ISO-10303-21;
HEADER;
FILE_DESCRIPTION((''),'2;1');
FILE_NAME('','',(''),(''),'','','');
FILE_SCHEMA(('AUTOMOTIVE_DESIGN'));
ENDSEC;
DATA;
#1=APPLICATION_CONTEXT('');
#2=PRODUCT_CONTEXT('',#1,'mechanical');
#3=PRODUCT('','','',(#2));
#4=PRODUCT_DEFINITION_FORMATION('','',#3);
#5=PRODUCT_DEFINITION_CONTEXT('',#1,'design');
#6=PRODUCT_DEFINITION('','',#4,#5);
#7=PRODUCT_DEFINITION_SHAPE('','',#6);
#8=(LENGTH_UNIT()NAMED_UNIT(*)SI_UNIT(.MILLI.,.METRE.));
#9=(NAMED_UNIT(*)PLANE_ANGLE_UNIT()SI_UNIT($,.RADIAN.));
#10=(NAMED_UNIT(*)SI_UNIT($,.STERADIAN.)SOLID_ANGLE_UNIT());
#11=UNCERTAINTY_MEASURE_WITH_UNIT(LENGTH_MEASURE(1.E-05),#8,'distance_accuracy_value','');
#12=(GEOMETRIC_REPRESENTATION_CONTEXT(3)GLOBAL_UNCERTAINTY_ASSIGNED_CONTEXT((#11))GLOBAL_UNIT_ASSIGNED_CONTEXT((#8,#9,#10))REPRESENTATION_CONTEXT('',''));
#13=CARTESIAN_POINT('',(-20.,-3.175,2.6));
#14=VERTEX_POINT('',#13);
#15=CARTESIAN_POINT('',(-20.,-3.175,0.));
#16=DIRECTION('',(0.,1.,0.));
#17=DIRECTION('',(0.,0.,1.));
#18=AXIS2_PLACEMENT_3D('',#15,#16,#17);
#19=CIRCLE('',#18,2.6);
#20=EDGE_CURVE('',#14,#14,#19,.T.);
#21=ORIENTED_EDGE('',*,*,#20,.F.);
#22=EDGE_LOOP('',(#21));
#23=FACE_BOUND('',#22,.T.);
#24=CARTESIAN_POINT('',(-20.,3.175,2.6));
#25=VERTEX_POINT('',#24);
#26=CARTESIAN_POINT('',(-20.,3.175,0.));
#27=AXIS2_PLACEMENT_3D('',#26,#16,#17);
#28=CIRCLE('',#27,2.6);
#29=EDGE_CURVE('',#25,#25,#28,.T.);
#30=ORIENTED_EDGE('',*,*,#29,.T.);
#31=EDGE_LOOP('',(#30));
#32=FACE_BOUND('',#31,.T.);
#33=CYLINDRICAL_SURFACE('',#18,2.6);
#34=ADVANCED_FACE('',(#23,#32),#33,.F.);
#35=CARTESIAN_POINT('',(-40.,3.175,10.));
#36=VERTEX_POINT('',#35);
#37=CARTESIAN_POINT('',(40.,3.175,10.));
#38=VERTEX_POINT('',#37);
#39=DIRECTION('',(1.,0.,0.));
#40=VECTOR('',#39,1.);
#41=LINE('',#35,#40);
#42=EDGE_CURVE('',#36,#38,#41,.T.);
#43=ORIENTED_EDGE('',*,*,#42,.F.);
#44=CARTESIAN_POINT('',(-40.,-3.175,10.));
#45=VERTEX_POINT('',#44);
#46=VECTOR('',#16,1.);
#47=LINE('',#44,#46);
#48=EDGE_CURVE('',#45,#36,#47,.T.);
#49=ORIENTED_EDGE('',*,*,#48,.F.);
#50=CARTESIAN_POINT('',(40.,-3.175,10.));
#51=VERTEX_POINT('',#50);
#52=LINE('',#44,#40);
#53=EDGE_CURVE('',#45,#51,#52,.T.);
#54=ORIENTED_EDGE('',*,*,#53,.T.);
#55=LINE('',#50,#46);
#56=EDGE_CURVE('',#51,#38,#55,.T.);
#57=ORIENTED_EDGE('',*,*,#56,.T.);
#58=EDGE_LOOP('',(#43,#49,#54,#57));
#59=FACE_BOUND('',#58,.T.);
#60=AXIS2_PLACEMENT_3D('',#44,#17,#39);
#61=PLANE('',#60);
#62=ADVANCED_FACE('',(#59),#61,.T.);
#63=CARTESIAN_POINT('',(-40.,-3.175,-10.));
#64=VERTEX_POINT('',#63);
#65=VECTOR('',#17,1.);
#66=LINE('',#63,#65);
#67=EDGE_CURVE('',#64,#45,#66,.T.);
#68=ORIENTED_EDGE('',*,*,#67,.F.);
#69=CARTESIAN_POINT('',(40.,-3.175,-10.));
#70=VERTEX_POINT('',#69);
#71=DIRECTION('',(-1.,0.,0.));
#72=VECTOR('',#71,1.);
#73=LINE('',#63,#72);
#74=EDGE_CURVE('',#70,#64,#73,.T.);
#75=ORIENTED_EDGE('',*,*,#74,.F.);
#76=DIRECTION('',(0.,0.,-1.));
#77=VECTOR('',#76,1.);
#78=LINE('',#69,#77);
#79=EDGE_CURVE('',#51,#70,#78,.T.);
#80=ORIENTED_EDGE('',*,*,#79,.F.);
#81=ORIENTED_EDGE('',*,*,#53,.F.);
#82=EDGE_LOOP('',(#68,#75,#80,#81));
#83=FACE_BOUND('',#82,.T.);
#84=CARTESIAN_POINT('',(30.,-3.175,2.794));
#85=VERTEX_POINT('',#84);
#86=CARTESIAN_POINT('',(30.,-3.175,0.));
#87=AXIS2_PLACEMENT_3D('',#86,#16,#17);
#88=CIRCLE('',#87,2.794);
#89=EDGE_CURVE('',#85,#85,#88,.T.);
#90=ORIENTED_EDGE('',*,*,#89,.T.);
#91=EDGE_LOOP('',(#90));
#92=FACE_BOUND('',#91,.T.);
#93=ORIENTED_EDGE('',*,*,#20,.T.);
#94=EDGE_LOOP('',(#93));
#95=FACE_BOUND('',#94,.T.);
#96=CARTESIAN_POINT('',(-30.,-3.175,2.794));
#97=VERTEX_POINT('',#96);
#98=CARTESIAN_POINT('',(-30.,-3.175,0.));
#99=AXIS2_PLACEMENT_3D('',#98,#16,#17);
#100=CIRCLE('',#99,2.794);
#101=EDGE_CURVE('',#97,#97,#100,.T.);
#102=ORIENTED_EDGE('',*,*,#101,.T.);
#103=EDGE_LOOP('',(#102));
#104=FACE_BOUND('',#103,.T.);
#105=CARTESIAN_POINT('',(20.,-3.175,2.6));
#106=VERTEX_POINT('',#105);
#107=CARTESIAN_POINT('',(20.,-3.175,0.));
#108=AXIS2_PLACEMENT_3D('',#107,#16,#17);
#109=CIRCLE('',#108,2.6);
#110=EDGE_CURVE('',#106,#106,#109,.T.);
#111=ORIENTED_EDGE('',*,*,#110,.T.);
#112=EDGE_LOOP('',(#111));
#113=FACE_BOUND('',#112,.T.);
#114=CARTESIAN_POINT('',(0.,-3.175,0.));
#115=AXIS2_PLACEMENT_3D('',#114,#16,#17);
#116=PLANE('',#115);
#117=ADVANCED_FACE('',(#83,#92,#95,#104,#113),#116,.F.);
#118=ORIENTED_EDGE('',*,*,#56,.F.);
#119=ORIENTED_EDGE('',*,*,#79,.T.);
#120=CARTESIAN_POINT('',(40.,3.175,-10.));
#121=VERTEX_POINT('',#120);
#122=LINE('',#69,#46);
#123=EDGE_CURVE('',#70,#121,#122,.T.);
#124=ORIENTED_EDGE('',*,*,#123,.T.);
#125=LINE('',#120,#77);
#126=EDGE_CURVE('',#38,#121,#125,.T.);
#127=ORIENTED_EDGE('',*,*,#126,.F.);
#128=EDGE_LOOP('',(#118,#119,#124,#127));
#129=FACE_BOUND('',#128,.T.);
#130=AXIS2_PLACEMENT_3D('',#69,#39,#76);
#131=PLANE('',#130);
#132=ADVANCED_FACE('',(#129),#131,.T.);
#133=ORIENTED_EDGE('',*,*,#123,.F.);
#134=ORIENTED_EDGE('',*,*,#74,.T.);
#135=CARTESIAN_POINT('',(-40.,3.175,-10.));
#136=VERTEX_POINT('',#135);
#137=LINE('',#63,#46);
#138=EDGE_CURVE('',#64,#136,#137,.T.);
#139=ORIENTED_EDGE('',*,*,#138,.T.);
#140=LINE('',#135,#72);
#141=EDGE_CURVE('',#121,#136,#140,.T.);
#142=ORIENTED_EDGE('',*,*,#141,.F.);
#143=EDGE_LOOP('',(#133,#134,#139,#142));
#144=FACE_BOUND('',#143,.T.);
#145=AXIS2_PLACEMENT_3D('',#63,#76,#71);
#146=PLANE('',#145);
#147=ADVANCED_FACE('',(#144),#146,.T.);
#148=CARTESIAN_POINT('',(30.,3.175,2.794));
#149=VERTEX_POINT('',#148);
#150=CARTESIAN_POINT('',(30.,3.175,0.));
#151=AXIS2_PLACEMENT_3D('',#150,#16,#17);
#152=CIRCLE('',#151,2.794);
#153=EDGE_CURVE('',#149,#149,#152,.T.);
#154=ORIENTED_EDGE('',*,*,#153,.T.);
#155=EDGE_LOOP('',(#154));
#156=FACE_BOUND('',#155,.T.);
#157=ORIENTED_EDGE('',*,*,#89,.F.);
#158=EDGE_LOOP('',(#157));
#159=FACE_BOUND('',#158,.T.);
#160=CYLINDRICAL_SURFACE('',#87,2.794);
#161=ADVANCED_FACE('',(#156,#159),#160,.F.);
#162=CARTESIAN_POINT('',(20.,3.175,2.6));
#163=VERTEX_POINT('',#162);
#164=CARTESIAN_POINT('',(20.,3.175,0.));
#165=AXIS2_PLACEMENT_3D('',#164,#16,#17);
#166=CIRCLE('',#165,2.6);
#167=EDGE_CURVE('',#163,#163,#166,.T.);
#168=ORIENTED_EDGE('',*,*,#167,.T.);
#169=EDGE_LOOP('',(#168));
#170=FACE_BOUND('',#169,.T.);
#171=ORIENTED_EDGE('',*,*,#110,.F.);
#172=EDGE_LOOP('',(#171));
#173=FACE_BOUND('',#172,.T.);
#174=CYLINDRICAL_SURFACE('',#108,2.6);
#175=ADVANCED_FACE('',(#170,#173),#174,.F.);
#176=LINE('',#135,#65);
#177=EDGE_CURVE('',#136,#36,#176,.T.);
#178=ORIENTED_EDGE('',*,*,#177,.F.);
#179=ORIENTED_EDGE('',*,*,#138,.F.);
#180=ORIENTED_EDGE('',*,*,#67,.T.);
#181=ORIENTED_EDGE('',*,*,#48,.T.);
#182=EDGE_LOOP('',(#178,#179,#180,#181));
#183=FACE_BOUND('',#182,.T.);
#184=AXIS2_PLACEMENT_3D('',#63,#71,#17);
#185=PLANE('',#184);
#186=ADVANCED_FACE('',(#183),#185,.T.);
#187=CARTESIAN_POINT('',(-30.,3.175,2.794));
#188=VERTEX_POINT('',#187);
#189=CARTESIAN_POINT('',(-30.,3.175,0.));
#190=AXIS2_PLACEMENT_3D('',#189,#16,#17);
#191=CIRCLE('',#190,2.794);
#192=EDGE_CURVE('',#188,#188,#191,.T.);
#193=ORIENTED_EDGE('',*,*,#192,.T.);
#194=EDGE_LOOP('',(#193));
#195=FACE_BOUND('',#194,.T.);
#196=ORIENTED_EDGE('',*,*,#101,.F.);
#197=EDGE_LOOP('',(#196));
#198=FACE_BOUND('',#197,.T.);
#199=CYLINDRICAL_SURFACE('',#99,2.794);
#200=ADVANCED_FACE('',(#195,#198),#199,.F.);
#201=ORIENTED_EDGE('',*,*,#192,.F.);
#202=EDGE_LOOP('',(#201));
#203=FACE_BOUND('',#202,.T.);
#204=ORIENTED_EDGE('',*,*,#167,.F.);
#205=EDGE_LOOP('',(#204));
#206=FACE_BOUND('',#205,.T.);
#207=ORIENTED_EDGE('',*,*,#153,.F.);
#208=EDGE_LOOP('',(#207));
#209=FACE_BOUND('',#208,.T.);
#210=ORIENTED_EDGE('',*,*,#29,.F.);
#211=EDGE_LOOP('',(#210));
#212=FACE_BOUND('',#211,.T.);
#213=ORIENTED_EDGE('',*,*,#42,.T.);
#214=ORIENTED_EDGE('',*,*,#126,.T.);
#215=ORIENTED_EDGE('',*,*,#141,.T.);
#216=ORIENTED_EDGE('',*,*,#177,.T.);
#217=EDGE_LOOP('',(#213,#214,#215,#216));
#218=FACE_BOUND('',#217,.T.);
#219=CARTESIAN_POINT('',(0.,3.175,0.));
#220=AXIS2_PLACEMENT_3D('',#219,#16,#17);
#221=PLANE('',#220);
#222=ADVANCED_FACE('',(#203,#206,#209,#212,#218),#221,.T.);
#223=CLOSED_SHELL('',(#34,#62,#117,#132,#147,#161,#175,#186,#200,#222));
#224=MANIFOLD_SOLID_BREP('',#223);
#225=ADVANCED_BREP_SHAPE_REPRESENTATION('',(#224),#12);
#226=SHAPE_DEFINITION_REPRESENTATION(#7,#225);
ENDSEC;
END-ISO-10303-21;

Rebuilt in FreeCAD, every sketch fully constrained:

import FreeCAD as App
import Part
import Sketcher

V = App.Vector


def add_polygon(sketch, points):
    """Adds a closed chain of lines whose ends are joined by coincident constraints."""
    first, n = sketch.GeometryCount, len(points)
    for a, b in zip(points, points[1:] + points[:1]):
        sketch.addGeometry(Part.LineSegment(App.Vector(*a, 0), App.Vector(*b, 0)), False)
    for i in range(n):
        sketch.addConstraint(Sketcher.Constraint("Coincident", first + i, 2, first + (i + 1) % n, 1))

doc = App.newDocument("Part")
body = doc.addObject("PartDesign::Body", "Body")

# Sketch on XZ plane
sketch1 = doc.addObject("Sketcher::SketchObject", "Sketch")
body.addObject(sketch1)
sketch1.AttachmentSupport = (doc.XZ_Plane, [""])
sketch1.MapMode = "FlatFace"
add_polygon(sketch1, [(-40, -10), (-40, 10), (40, 10), (40, -10)])  # lines 0-3
sketch1.addGeometry(Part.Circle(V(-30, 0, 0), V(0, 0, 1), 2.794), False)  # 4
sketch1.addGeometry(Part.Circle(V(-20, 0, 0), V(0, 0, 1), 2.6), False)  # 5
sketch1.addGeometry(Part.Circle(V(20, 0, 0), V(0, 0, 1), 2.6), False)  # 6
sketch1.addGeometry(Part.Circle(V(30, 0, 0), V(0, 0, 1), 2.794), False)  # 7
sketch1.addConstraint(Sketcher.Constraint("Vertical", 0))
sketch1.addConstraint(Sketcher.Constraint("Horizontal", 1))
sketch1.addConstraint(Sketcher.Constraint("Vertical", 2))
sketch1.addConstraint(Sketcher.Constraint("Horizontal", 3))
sketch1.addConstraint(Sketcher.Constraint("Equal", 5, 6))
sketch1.addConstraint(Sketcher.Constraint("Equal", 4, 7))
sketch1.addConstraint(Sketcher.Constraint("Symmetric", 5, 3, 6, 3, -1, 1))
sketch1.addConstraint(Sketcher.Constraint("Symmetric", 4, 3, 7, 3, -1, 1))
sketch1.addConstraint(Sketcher.Constraint("Symmetric", 0, 2, 2, 2, -1, 1))
sketch1.addConstraint(Sketcher.Constraint("PointOnObject", 4, 3, -1))
sketch1.addConstraint(Sketcher.Constraint("PointOnObject", 5, 3, -1))
sketch1.addConstraint(Sketcher.Constraint("Diameter", 5, 5.2))
sketch1.addConstraint(Sketcher.Constraint("DistanceX", 1, 1, 1, 2, 80.0))
sketch1.addConstraint(Sketcher.Constraint("DistanceY", 0, 1, 0, 2, 20.0))
sketch1.addConstraint(Sketcher.Constraint("Diameter", 4, 5.588))
sketch1.addConstraint(Sketcher.Constraint("DistanceX", 4, 3, -1, 1, 30.0))
sketch1.addConstraint(Sketcher.Constraint("DistanceX", 5, 3, -1, 1, 20.0))
pad1 = doc.addObject("PartDesign::Pad", "Pad")
body.addObject(pad1)
pad1.Profile = sketch1
pad1.Type = "TwoLengths"
pad1.Length = 3.175
pad1.Length2 = 3.175
pad1.Reversed = True

doc.recompute()
